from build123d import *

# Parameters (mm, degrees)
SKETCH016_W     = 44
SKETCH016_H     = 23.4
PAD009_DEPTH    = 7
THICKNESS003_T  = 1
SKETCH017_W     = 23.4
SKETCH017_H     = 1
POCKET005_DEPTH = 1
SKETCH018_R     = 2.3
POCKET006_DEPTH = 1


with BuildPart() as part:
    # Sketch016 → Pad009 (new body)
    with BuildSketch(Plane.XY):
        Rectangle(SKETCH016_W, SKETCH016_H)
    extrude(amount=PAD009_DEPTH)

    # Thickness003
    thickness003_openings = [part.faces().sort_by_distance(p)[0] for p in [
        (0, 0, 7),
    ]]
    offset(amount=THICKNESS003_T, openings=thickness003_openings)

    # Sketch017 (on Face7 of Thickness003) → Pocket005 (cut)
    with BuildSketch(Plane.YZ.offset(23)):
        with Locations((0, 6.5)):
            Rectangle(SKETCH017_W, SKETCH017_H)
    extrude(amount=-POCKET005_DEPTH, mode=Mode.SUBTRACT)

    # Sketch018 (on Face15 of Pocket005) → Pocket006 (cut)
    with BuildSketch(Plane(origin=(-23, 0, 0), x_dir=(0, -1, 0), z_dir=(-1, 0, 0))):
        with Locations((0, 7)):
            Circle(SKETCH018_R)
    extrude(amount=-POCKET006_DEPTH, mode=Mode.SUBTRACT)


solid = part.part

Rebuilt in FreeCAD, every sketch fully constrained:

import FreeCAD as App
import Part
import Sketcher
from FreeCAD import Vector
Q = App.Units.Quantity


def faces_at(feature, points):
    """Names of the faces that lie closest to the given points."""
    faces = feature.Shape.Faces
    near = lambda p: min(range(len(faces)), key=lambda i: faces[i].distToShape(Part.Vertex(*p))[0])
    return sorted({f"Face{near(p) + 1}" for p in points})

doc = App.newDocument("Part")
body = doc.addObject("PartDesign::Body", "Body")

sketch1 = doc.addObject("Sketcher::SketchObject", "Sketch")
body.addObject(sketch1)
sketch1.AttachmentSupport = (doc.XY_Plane, [""])
sketch1.MapMode = "FlatFace"
sketch1.addGeometry([
    Part.LineSegment(Vector(-22, 11.7, 0), Vector(-22, -11.7, 0)),
    Part.LineSegment(Vector(-22, -11.7, 0), Vector(22, -11.7, 0)),
    Part.LineSegment(Vector(22, -11.7, 0), Vector(22, 11.7, 0)),
    Part.LineSegment(Vector(22, 11.7, 0), Vector(-22, 11.7, 0)),
], False)
sketch1.addConstraint([
    Sketcher.Constraint("Coincident", 0, 2, 1, 1),
    Sketcher.Constraint("Coincident", 1, 2, 2, 1),
    Sketcher.Constraint("Coincident", 2, 2, 3, 1),
    Sketcher.Constraint("Coincident", 3, 2, 0, 1),
    Sketcher.Constraint("Vertical", 0),
    Sketcher.Constraint("Horizontal", 1),
    Sketcher.Constraint("Vertical", 2),
    Sketcher.Constraint("Horizontal", 3),
    Sketcher.Constraint("Symmetric", 0, 2, 2, 2, -1, 1),
    Sketcher.Constraint("DistanceX", 1, 1, 1, 2, Q("44 mm")),
    Sketcher.Constraint("DistanceY", 0, 2, 0, 1, Q("23.4 mm")),
])
pad1 = doc.addObject("PartDesign::Pad", "Pad")
body.addObject(pad1)
pad1.Profile = sketch1
pad1.Length = 7
doc.recompute()

thickness = doc.addObject("PartDesign::Thickness", "Thickness")
body.addObject(thickness)
thickness.Base = (pad1, faces_at(pad1, [(0, 0, 7)]))
thickness.Value = 1
thickness.Reversed = False
thickness.Join = "Arc"

sketch2 = doc.addObject("Sketcher::SketchObject", "Sketch001")
body.addObject(sketch2)
sketch2.AttachmentSupport = (doc.YZ_Plane, [""])
sketch2.MapMode = "FlatFace"
sketch2.AttachmentOffset = App.Placement(Vector(0, 0, 23), App.Rotation())
sketch2.addGeometry([
    Part.LineSegment(Vector(-11.7, 7, 0), Vector(-11.7, 6, 0)),
    Part.LineSegment(Vector(-11.7, 6, 0), Vector(11.7, 6, 0)),
    Part.LineSegment(Vector(11.7, 6, 0), Vector(11.7, 7, 0)),
    Part.LineSegment(Vector(11.7, 7, 0), Vector(-11.7, 7, 0)),
], False)
sketch2.addConstraint([
    Sketcher.Constraint("Coincident", 0, 2, 1, 1),
    Sketcher.Constraint("Coincident", 1, 2, 2, 1),
    Sketcher.Constraint("Coincident", 2, 2, 3, 1),
    Sketcher.Constraint("Coincident", 3, 2, 0, 1),
    Sketcher.Constraint("Vertical", 0),
    Sketcher.Constraint("Horizontal", 1),
    Sketcher.Constraint("Vertical", 2),
    Sketcher.Constraint("Horizontal", 3),
    Sketcher.Constraint("DistanceY", 0, 2, 0, 1, Q("1 mm")),
    Sketcher.Constraint("DistanceX", 1, 1, 1, 2, Q("23.4 mm")),
    Sketcher.Constraint("DistanceY", -1, 1, 0, 2, Q("6 mm")),
    Sketcher.Constraint("DistanceX", 0, 2, -1, 1, Q("11.7 mm")),
])
pocket1 = doc.addObject("PartDesign::Pocket", "Pocket")
body.addObject(pocket1)
pocket1.Profile = sketch2
pocket1.Length = 1

sketch3 = doc.addObject("Sketcher::SketchObject", "Sketch002")
body.addObject(sketch3)
sketch3.AttachmentSupport = (doc.YZ_Plane, [""])
sketch3.MapMode = "FlatFace"
sketch3.AttachmentOffset = App.Placement(Vector(0, 0, -23), App.Rotation())
sketch3.addGeometry(Part.Circle(Vector(0, 7, 0), Vector(0, 0, 1), 2.3), False)
sketch3.addConstraint([
    Sketcher.Constraint("PointOnObject", 0, 3, -2),
    Sketcher.Constraint("Diameter", 0, Q("4.6 mm")),
    Sketcher.Constraint("DistanceY", -1, 1, 0, 3, Q("7 mm")),
])
pocket2 = doc.addObject("PartDesign::Pocket", "Pocket001")
body.addObject(pocket2)
pocket2.Profile = sketch3
pocket2.Length = 1
pocket2.Reversed = True

doc.recompute()
